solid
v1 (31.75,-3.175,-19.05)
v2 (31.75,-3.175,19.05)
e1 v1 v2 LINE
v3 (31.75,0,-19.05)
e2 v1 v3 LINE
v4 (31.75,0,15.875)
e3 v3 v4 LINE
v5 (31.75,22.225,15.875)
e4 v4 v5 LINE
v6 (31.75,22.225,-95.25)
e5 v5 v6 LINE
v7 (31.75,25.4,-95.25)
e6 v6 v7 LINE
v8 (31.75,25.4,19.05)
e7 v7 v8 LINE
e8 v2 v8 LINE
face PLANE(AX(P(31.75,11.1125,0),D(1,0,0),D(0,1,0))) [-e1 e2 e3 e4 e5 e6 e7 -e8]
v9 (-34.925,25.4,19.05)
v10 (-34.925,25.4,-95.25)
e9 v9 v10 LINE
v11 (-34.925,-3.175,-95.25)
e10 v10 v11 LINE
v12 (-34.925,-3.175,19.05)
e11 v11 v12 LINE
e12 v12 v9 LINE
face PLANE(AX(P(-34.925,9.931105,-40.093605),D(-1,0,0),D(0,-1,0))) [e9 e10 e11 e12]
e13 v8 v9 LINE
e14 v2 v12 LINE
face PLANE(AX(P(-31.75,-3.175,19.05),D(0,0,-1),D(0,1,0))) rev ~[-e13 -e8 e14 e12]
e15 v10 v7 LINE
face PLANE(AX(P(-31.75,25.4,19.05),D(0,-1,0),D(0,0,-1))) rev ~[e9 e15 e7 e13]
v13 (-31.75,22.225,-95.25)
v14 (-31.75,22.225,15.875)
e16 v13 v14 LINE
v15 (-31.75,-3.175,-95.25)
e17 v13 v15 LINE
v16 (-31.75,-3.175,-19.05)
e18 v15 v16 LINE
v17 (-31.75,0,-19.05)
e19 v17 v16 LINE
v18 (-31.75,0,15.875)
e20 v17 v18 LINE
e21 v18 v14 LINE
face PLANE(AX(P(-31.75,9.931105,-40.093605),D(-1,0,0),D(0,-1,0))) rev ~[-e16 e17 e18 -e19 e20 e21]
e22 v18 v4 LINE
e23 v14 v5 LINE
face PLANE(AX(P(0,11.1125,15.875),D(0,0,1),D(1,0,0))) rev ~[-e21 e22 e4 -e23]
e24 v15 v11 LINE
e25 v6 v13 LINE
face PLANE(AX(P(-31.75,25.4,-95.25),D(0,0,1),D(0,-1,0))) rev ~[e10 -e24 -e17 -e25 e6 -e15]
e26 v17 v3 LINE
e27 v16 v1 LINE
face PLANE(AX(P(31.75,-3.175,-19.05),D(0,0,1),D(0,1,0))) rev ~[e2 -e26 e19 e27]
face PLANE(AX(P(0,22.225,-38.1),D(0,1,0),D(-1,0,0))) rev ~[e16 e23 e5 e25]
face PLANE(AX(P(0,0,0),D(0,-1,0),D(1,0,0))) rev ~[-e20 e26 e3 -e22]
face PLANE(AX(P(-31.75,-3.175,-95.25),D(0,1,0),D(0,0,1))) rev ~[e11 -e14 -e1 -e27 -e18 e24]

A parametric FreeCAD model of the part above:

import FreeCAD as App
import Part
import Sketcher
from FreeCAD import Vector
Q = App.Units.Quantity


def add_polygon(sketch, points):
    """Adds a closed chain of lines whose ends are joined by coincident constraints."""
    first, n = sketch.GeometryCount, len(points)
    for a, b in zip(points, points[1:] + points[:1]):
        sketch.addGeometry(Part.LineSegment(App.Vector(*a, 0), App.Vector(*b, 0)), False)
    for i in range(n):
        sketch.addConstraint(Sketcher.Constraint("Coincident", first + i, 2, first + (i + 1) % n, 1))

doc = App.newDocument("Part")
body = doc.addObject("PartDesign::Body", "Body")

sketch1 = doc.addObject("Sketcher::SketchObject", "Sketch")
body.addObject(sketch1)
sketch1.AttachmentSupport = (doc.XZ_Plane, [""])
sketch1.MapMode = "FlatFace"
add_polygon(sketch1, [(-32, 19), (-32, -19), (32, -19), (32, 19)])
sketch1.addConstraint([
    Sketcher.Constraint("Vertical", 0),
    Sketcher.Constraint("Horizontal", 1),
    Sketcher.Constraint("Vertical", 2),
    Sketcher.Constraint("Horizontal", 3),
    Sketcher.Constraint("Symmetric", 0, 2, 2, 2, -1, 1),
    Sketcher.Constraint("DistanceX", 1, 1, 1, 2, Q("2.5 in")),
    Sketcher.Constraint("DistanceY", 0, 2, 0, 1, Q("1.5 in")),
])
pad1 = doc.addObject("PartDesign::Pad", "Pad")
body.addObject(pad1)
pad1.Profile = sketch1
pad1.Length = Q("0.125 in")

sketch2 = doc.addObject("Sketcher::SketchObject", "Sketch001")
body.addObject(sketch2)
sketch2.AttachmentSupport = (doc.YZ_Plane, [""])
sketch2.MapMode = "FlatFace"
sketch2.AttachmentOffset = App.Placement(Vector(0, 0, 1.25 * 25.4), App.Rotation())
add_polygon(sketch2, [(22, -19), (22, 19), (-3, 19), (-3, -19)])
sketch2.addConstraint([
    Sketcher.Constraint("Vertical", 0),
    Sketcher.Constraint("Horizontal", 1),
    Sketcher.Constraint("Vertical", 2),
    Sketcher.Constraint("Horizontal", 3),
    Sketcher.Constraint("DistanceX", 1, 2, 1, 1, Q("1 in")),
    Sketcher.Constraint("DistanceY", 0, 1, 0, 2, Q("1.5 in")),
    Sketcher.Constraint("DistanceY", -1, 1, 0, 2, Q("0.75 in")),
    Sketcher.Constraint("DistanceX", -1, 1, 0, 2, Q("0.875 in")),
])
pad2 = doc.addObject("PartDesign::Pad", "Pad001")
body.addObject(pad2)
pad2.Profile = sketch2
pad2.Length = Q("0.125 in")

sketch3 = doc.addObject("Sketcher::SketchObject", "Sketch002")
body.addObject(sketch3)
sketch3.AttachmentSupport = (doc.XY_Plane, [""])
sketch3.MapMode = "FlatFace"
sketch3.AttachmentOffset = App.Placement(Vector(0, 0, -0.75 * 25.4), App.Rotation())
add_polygon(sketch3, [(31.8, 22.2), (34.9, 22.2), (34.9, -3.2), (31.8, -3.2)])
sketch3.addConstraint([
    Sketcher.Constraint("Horizontal", 0),
    Sketcher.Constraint("Vertical", 1),
    Sketcher.Constraint("Horizontal", 2),
    Sketcher.Constraint("Vertical", 3),
    Sketcher.Constraint("DistanceY", 1, 2, 1, 1, Q("1 in")),
    Sketcher.Constraint("DistanceX", 0, 1, 0, 2, Q("0.125 in")),
    Sketcher.Constraint("DistanceX", -1, 1, 2, 2, Q("1.25 in")),
    Sketcher.Constraint("DistanceY", -1, 1, 0, 2, Q("0.875 in")),
])
pad3 = doc.addObject("PartDesign::Pad", "Pad002")
body.addObject(pad3)
pad3.Profile = sketch3
pad3.Length = Q("3 in")
pad3.Reversed = True

sketch4 = doc.addObject("Sketcher::SketchObject", "Sketch003")
body.addObject(sketch4)
sketch4.AttachmentSupport = (doc.XZ_Plane, [""])
sketch4.MapMode = "FlatFace"
sketch4.AttachmentOffset = App.Placement(Vector(0, 0, -0.875 * 25.4), App.Rotation())
add_polygon(sketch4, [(-32, -95), (-32, 19), (35, 19), (35, -95)])
sketch4.addConstraint([
    Sketcher.Constraint("Vertical", 0),
    Sketcher.Constraint("Horizontal", 1),
    Sketcher.Constraint("Vertical", 2),
    Sketcher.Constraint("Horizontal", 3),
    Sketcher.Constraint("DistanceY", 0, 1, 0, 2, Q("4.5 in")),
    Sketcher.Constraint("DistanceX", 1, 1, 1, 2, Q("2.625 in")),
    Sketcher.Constraint("DistanceX", 0, 2, -1, 1, Q("1.25 in")),
    Sketcher.Constraint("DistanceY", -1, 1, 0, 2, Q("0.75 in")),
])
pad4 = doc.addObject("PartDesign::Pad", "Pad003")
body.addObject(pad4)
pad4.Profile = sketch4
pad4.Length = Q("0.125 in")
pad4.Reversed = True

sketch5 = doc.addObject("Sketcher::SketchObject", "Sketch004")
body.addObject(sketch5)
sketch5.AttachmentSupport = (doc.XY_Plane, [""])
sketch5.MapMode = "FlatFace"
sketch5.AttachmentOffset = App.Placement(Vector(0, 0, 0.75 * 25.4), App.Rotation())
add_polygon(sketch5, [(-32, 22), (-32, 0), (32, 0), (32, 22)])
sketch5.addConstraint([
    Sketcher.Constraint("Vertical", 0),
    Sketcher.Constraint("Horizontal", 1),
    Sketcher.Constraint("Vertical", 2),
    Sketcher.Constraint("Horizontal", 3),
    Sketcher.Constraint("Symmetric", 0, 2, 1, 2, -1, 1),
    Sketcher.Constraint("DistanceX", 1, 1, 1, 2, Q("2.5 in")),
    Sketcher.Constraint("DistanceY", 0, 2, 0, 1, Q("0.875 in")),
])
pad5 = doc.addObject("PartDesign::Pad", "Pad004")
body.addObject(pad5)
pad5.Profile = sketch5
pad5.Length = Q("0.125 in")
pad5.Reversed = True

sketch6 = doc.addObject("Sketcher::SketchObject", "Sketch005")
body.addObject(sketch6)
sketch6.AttachmentSupport = (doc.XY_Plane, [""])
sketch6.MapMode = "FlatFace"
sketch6.AttachmentOffset = App.Placement(Vector(0, 0, -3.75 * 25.4), App.Rotation())
add_polygon(sketch6, [(34.9, -3.2), (31.8, -3.2), (31.8, 25.4), (34.9, 25.4)])
sketch6.addConstraint([
    Sketcher.Constraint("Horizontal", 0),
    Sketcher.Constraint("Vertical", 1),
    Sketcher.Constraint("Horizontal", 2),
    Sketcher.Constraint("Vertical", 3),
    Sketcher.Constraint("DistanceY", -1, 1, 1, 2, Q("1 in")),
    Sketcher.Constraint("DistanceX", 0, 2, 0, 1, Q("0.125 in")),
    Sketcher.Constraint("DistanceY", 1, 1, 1, 2, Q("1.125 in")),
    Sketcher.Constraint("DistanceX", -1, 1, 0, 2, Q("1.25 in")),
])
pocket1 = doc.addObject("PartDesign::Pocket", "Pocket")
body.addObject(pocket1)
pocket1.Profile = sketch6
pocket1.Length = Q("3 in")
pocket1.Reversed = True

sketch7 = doc.addObject("Sketcher::SketchObject", "Sketch006")
body.addObject(sketch7)
sketch7.AttachmentSupport = (doc.YZ_Plane, [""])
sketch7.MapMode = "FlatFace"
sketch7.AttachmentOffset = App.Placement(Vector(0, 0, -1.25 * 25.4), App.Rotation())
add_polygon(sketch7, [(-3, -95), (-3, 19), (25, 19), (25, -95)])
sketch7.addConstraint([
    Sketcher.Constraint("Vertical", 0),
    Sketcher.Constraint("Horizontal", 1),
    Sketcher.Constraint("Vertical", 2),
    Sketcher.Constraint("Horizontal", 3),
    Sketcher.Constraint("DistanceY", 0, 1, 0, 2, Q("4.5 in")),
    Sketcher.Constraint("DistanceX", -1, 1, 1, 2, Q("1 in")),
    Sketcher.Constraint("DistanceX", 1, 1, 1, 2, Q("1.125 in")),
    Sketcher.Constraint("DistanceY", -1, 1, 0, 2, Q("0.75 in")),
])
pad6 = doc.addObject("PartDesign::Pad", "Pad005")
body.addObject(pad6)
pad6.Profile = sketch7
pad6.Length = Q("0.125 in")
pad6.Reversed = True

sketch8 = doc.addObject("Sketcher::SketchObject", "Sketch007")
body.addObject(sketch8)
sketch8.AttachmentSupport = (doc.YZ_Plane, [""])
sketch8.MapMode = "FlatFace"
sketch8.AttachmentOffset = App.Placement(Vector(0, 0, 1.375 * 25.4), App.Rotation())
add_polygon(sketch8, [(-3, 19), (-3, -19), (25, -19), (25, 19)])
sketch8.addConstraint([
    Sketcher.Constraint("Vertical", 0),
    Sketcher.Constraint("Horizontal", 1),
    Sketcher.Constraint("Vertical", 2),
    Sketcher.Constraint("Horizontal", 3),
    Sketcher.Constraint("DistanceY", 0, 2, 0, 1, Q("1.5 in")),
    Sketcher.Constraint("DistanceX", -1, 1, 1, 2, Q("1 in")),
    Sketcher.Constraint("DistanceX", 1, 1, 1, 2, Q("1.125 in")),
    Sketcher.Constraint("DistanceY", 0, 2, -1, 1, Q("0.75 in")),
])
pocket2 = doc.addObject("PartDesign::Pocket", "Pocket001")
body.addObject(pocket2)
pocket2.Profile = sketch8
pocket2.Length = Q("0.125 in")

doc.recompute()
